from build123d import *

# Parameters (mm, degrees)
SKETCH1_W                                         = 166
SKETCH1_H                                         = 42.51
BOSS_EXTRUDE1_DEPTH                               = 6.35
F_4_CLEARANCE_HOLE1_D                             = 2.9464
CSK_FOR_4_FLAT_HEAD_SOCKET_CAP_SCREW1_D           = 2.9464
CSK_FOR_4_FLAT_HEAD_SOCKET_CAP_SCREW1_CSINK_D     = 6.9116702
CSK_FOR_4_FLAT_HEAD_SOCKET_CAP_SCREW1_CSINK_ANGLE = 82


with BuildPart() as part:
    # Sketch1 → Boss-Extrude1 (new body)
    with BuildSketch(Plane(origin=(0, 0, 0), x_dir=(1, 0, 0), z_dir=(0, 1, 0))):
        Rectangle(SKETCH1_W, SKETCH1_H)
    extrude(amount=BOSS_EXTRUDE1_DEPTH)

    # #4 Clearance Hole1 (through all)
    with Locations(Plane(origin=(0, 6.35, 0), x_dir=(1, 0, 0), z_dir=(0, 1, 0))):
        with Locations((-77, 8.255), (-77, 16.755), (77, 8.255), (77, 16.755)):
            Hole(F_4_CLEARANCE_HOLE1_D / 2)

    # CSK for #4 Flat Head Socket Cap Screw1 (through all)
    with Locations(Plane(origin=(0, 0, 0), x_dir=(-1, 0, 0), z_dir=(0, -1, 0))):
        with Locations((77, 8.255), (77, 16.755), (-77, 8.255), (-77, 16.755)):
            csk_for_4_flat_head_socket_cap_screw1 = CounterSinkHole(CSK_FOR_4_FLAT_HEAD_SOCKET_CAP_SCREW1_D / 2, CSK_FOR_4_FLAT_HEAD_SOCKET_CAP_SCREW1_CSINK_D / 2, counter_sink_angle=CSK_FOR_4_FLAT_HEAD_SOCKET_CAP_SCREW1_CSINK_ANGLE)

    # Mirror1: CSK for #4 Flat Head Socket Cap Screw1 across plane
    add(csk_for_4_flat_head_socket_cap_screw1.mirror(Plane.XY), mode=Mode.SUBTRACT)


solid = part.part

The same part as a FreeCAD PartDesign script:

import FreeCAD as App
import Part
import Sketcher
Q = App.Units.Quantity


def add_polygon(sketch, points):
    """Adds a closed chain of lines whose ends are joined by coincident constraints."""
    first, n = sketch.GeometryCount, len(points)
    for a, b in zip(points, points[1:] + points[:1]):
        sketch.addGeometry(Part.LineSegment(App.Vector(*a, 0), App.Vector(*b, 0)), False)
    for i in range(n):
        sketch.addConstraint(Sketcher.Constraint("Coincident", first + i, 2, first + (i + 1) % n, 1))

doc = App.newDocument("Part")
body = doc.addObject("PartDesign::Body", "Body")

# Sketch on XZ plane
sketch1 = body.newObject("Sketcher::SketchObject", "Sketch")
sketch1.AttachmentSupport = (doc.getObject("XZ_Plane"), [""])
sketch1.MapMode = "FlatFace"
add_polygon(sketch1, [(-83, -21), (-83, 21), (83, 21), (83, -21)])  # lines 0-3
sketch1.addConstraint(Sketcher.Constraint("Vertical", 0))
sketch1.addConstraint(Sketcher.Constraint("Horizontal", 1))
sketch1.addConstraint(Sketcher.Constraint("Vertical", 2))
sketch1.addConstraint(Sketcher.Constraint("Horizontal", 3))
sketch1.addConstraint(Sketcher.Constraint("Symmetric", 0, 2, 2, 2, -1, 1))
sketch1.addConstraint(Sketcher.Constraint("DistanceX", 1, 1, 1, 2, Q("166 mm")))
sketch1.addConstraint(Sketcher.Constraint("DistanceY", 0, 1, 0, 2, Q("42.51 mm")))
pad1 = body.newObject("PartDesign::Pad", "Pad")
pad1.Profile = sketch1
pad1.Length = Q("0.25 in")
pad1.Reversed = True

# Sketch on XZ plane
sketch2 = body.newObject("Sketcher::SketchObject", "Sketch001")
sketch2.AttachmentSupport = (doc.getObject("XZ_Plane"), [""])
sketch2.MapMode = "FlatFace"
sketch2.AttachmentOffset = App.Placement(App.Vector(0, 0, -0.25 * 25.4), App.Rotation())
sketch2.addGeometry(Part.Circle(App.Vector(-77, -8.3, 0), App.Vector(0, 0, 1), 1.5), False)
sketch2.addGeometry(Part.Circle(App.Vector(-77, -16.8, 0), App.Vector(0, 0, 1), 1.5), False)
sketch2.addGeometry(Part.Circle(App.Vector(77, -8.3, 0), App.Vector(0, 0, 1), 1.5), False)
sketch2.addGeometry(Part.Circle(App.Vector(77, -16.8, 0), App.Vector(0, 0, 1), 1.5), False)
sketch2.addConstraint(Sketcher.Constraint("Equal", 0, 1))
sketch2.addConstraint(Sketcher.Constraint("Equal", 1, 2))
sketch2.addConstraint(Sketcher.Constraint("Equal", 2, 3))
sketch2.addConstraint(Sketcher.Constraint("Symmetric", 0, 3, 2, 3, -2))
sketch2.addConstraint(Sketcher.Constraint("Symmetric", 1, 3, 3, 3, -2))
sketch2.addConstraint(Sketcher.Constraint("Vertical", 0, 3, 1, 3))
sketch2.addConstraint(Sketcher.Constraint("Diameter", 0, Q("0.116 in")))
sketch2.addConstraint(Sketcher.Constraint("DistanceY", 0, 3, -1, 1, Q("0.325 in")))
sketch2.addConstraint(Sketcher.Constraint("DistanceX", 0, 3, -1, 1, Q("77 mm")))
sketch2.addConstraint(Sketcher.Constraint("DistanceY", 1, 3, -1, 1, Q("16.755 mm")))
doc.recompute()
hole = body.newObject("PartDesign::Hole", "Hole")
hole.Profile = sketch2
hole.ThreadType = "None"
hole.Diameter = Q("0.116 in")
hole.DepthType = "ThroughAll"
hole.Reversed = True

# Sketch on XZ plane
sketch3 = body.newObject("Sketcher::SketchObject", "Sketch002")
sketch3.AttachmentSupport = (doc.getObject("XZ_Plane"), [""])
sketch3.MapMode = "FlatFace"
sketch3.addGeometry(Part.Circle(App.Vector(-77, -8.3, 0), App.Vector(0, 0, 1), 1.5), False)
sketch3.addGeometry(Part.Circle(App.Vector(-77, -16.8, 0), App.Vector(0, 0, 1), 1.5), False)
sketch3.addGeometry(Part.Circle(App.Vector(77, -8.3, 0), App.Vector(0, 0, 1), 1.5), False)
sketch3.addGeometry(Part.Circle(App.Vector(77, -16.8, 0), App.Vector(0, 0, 1), 1.5), False)
sketch3.addConstraint(Sketcher.Constraint("Equal", 0, 1))
sketch3.addConstraint(Sketcher.Constraint("Equal", 1, 2))
sketch3.addConstraint(Sketcher.Constraint("Equal", 2, 3))
sketch3.addConstraint(Sketcher.Constraint("Symmetric", 0, 3, 2, 3, -2))
sketch3.addConstraint(Sketcher.Constraint("Symmetric", 1, 3, 3, 3, -2))
sketch3.addConstraint(Sketcher.Constraint("Vertical", 0, 3, 1, 3))
sketch3.addConstraint(Sketcher.Constraint("Diameter", 0, Q("0.116 in")))
sketch3.addConstraint(Sketcher.Constraint("DistanceY", 0, 3, -1, 1, Q("0.325 in")))
sketch3.addConstraint(Sketcher.Constraint("DistanceX", 0, 3, -1, 1, Q("77 mm")))
sketch3.addConstraint(Sketcher.Constraint("DistanceY", 1, 3, -1, 1, Q("16.755 mm")))
doc.recompute()
hole2 = body.newObject("PartDesign::Hole", "Hole001")
hole2.Profile = sketch3
hole2.ThreadType = "None"
hole2.Diameter = Q("0.116 in")
hole2.DepthType = "ThroughAll"
hole2.HoleCutType = "Countersink"
hole2.HoleCutDiameter = 6.91167
hole2.HoleCutCountersinkAngle = 82
doc.recompute()

mirrored = body.newObject("PartDesign::Mirrored", "Mirrored")
mirrored.Originals = [hole2]
mirrored.MirrorPlane = (doc.getObject("XY_Plane"), [""])
body.Tip = mirrored

doc.recompute()
